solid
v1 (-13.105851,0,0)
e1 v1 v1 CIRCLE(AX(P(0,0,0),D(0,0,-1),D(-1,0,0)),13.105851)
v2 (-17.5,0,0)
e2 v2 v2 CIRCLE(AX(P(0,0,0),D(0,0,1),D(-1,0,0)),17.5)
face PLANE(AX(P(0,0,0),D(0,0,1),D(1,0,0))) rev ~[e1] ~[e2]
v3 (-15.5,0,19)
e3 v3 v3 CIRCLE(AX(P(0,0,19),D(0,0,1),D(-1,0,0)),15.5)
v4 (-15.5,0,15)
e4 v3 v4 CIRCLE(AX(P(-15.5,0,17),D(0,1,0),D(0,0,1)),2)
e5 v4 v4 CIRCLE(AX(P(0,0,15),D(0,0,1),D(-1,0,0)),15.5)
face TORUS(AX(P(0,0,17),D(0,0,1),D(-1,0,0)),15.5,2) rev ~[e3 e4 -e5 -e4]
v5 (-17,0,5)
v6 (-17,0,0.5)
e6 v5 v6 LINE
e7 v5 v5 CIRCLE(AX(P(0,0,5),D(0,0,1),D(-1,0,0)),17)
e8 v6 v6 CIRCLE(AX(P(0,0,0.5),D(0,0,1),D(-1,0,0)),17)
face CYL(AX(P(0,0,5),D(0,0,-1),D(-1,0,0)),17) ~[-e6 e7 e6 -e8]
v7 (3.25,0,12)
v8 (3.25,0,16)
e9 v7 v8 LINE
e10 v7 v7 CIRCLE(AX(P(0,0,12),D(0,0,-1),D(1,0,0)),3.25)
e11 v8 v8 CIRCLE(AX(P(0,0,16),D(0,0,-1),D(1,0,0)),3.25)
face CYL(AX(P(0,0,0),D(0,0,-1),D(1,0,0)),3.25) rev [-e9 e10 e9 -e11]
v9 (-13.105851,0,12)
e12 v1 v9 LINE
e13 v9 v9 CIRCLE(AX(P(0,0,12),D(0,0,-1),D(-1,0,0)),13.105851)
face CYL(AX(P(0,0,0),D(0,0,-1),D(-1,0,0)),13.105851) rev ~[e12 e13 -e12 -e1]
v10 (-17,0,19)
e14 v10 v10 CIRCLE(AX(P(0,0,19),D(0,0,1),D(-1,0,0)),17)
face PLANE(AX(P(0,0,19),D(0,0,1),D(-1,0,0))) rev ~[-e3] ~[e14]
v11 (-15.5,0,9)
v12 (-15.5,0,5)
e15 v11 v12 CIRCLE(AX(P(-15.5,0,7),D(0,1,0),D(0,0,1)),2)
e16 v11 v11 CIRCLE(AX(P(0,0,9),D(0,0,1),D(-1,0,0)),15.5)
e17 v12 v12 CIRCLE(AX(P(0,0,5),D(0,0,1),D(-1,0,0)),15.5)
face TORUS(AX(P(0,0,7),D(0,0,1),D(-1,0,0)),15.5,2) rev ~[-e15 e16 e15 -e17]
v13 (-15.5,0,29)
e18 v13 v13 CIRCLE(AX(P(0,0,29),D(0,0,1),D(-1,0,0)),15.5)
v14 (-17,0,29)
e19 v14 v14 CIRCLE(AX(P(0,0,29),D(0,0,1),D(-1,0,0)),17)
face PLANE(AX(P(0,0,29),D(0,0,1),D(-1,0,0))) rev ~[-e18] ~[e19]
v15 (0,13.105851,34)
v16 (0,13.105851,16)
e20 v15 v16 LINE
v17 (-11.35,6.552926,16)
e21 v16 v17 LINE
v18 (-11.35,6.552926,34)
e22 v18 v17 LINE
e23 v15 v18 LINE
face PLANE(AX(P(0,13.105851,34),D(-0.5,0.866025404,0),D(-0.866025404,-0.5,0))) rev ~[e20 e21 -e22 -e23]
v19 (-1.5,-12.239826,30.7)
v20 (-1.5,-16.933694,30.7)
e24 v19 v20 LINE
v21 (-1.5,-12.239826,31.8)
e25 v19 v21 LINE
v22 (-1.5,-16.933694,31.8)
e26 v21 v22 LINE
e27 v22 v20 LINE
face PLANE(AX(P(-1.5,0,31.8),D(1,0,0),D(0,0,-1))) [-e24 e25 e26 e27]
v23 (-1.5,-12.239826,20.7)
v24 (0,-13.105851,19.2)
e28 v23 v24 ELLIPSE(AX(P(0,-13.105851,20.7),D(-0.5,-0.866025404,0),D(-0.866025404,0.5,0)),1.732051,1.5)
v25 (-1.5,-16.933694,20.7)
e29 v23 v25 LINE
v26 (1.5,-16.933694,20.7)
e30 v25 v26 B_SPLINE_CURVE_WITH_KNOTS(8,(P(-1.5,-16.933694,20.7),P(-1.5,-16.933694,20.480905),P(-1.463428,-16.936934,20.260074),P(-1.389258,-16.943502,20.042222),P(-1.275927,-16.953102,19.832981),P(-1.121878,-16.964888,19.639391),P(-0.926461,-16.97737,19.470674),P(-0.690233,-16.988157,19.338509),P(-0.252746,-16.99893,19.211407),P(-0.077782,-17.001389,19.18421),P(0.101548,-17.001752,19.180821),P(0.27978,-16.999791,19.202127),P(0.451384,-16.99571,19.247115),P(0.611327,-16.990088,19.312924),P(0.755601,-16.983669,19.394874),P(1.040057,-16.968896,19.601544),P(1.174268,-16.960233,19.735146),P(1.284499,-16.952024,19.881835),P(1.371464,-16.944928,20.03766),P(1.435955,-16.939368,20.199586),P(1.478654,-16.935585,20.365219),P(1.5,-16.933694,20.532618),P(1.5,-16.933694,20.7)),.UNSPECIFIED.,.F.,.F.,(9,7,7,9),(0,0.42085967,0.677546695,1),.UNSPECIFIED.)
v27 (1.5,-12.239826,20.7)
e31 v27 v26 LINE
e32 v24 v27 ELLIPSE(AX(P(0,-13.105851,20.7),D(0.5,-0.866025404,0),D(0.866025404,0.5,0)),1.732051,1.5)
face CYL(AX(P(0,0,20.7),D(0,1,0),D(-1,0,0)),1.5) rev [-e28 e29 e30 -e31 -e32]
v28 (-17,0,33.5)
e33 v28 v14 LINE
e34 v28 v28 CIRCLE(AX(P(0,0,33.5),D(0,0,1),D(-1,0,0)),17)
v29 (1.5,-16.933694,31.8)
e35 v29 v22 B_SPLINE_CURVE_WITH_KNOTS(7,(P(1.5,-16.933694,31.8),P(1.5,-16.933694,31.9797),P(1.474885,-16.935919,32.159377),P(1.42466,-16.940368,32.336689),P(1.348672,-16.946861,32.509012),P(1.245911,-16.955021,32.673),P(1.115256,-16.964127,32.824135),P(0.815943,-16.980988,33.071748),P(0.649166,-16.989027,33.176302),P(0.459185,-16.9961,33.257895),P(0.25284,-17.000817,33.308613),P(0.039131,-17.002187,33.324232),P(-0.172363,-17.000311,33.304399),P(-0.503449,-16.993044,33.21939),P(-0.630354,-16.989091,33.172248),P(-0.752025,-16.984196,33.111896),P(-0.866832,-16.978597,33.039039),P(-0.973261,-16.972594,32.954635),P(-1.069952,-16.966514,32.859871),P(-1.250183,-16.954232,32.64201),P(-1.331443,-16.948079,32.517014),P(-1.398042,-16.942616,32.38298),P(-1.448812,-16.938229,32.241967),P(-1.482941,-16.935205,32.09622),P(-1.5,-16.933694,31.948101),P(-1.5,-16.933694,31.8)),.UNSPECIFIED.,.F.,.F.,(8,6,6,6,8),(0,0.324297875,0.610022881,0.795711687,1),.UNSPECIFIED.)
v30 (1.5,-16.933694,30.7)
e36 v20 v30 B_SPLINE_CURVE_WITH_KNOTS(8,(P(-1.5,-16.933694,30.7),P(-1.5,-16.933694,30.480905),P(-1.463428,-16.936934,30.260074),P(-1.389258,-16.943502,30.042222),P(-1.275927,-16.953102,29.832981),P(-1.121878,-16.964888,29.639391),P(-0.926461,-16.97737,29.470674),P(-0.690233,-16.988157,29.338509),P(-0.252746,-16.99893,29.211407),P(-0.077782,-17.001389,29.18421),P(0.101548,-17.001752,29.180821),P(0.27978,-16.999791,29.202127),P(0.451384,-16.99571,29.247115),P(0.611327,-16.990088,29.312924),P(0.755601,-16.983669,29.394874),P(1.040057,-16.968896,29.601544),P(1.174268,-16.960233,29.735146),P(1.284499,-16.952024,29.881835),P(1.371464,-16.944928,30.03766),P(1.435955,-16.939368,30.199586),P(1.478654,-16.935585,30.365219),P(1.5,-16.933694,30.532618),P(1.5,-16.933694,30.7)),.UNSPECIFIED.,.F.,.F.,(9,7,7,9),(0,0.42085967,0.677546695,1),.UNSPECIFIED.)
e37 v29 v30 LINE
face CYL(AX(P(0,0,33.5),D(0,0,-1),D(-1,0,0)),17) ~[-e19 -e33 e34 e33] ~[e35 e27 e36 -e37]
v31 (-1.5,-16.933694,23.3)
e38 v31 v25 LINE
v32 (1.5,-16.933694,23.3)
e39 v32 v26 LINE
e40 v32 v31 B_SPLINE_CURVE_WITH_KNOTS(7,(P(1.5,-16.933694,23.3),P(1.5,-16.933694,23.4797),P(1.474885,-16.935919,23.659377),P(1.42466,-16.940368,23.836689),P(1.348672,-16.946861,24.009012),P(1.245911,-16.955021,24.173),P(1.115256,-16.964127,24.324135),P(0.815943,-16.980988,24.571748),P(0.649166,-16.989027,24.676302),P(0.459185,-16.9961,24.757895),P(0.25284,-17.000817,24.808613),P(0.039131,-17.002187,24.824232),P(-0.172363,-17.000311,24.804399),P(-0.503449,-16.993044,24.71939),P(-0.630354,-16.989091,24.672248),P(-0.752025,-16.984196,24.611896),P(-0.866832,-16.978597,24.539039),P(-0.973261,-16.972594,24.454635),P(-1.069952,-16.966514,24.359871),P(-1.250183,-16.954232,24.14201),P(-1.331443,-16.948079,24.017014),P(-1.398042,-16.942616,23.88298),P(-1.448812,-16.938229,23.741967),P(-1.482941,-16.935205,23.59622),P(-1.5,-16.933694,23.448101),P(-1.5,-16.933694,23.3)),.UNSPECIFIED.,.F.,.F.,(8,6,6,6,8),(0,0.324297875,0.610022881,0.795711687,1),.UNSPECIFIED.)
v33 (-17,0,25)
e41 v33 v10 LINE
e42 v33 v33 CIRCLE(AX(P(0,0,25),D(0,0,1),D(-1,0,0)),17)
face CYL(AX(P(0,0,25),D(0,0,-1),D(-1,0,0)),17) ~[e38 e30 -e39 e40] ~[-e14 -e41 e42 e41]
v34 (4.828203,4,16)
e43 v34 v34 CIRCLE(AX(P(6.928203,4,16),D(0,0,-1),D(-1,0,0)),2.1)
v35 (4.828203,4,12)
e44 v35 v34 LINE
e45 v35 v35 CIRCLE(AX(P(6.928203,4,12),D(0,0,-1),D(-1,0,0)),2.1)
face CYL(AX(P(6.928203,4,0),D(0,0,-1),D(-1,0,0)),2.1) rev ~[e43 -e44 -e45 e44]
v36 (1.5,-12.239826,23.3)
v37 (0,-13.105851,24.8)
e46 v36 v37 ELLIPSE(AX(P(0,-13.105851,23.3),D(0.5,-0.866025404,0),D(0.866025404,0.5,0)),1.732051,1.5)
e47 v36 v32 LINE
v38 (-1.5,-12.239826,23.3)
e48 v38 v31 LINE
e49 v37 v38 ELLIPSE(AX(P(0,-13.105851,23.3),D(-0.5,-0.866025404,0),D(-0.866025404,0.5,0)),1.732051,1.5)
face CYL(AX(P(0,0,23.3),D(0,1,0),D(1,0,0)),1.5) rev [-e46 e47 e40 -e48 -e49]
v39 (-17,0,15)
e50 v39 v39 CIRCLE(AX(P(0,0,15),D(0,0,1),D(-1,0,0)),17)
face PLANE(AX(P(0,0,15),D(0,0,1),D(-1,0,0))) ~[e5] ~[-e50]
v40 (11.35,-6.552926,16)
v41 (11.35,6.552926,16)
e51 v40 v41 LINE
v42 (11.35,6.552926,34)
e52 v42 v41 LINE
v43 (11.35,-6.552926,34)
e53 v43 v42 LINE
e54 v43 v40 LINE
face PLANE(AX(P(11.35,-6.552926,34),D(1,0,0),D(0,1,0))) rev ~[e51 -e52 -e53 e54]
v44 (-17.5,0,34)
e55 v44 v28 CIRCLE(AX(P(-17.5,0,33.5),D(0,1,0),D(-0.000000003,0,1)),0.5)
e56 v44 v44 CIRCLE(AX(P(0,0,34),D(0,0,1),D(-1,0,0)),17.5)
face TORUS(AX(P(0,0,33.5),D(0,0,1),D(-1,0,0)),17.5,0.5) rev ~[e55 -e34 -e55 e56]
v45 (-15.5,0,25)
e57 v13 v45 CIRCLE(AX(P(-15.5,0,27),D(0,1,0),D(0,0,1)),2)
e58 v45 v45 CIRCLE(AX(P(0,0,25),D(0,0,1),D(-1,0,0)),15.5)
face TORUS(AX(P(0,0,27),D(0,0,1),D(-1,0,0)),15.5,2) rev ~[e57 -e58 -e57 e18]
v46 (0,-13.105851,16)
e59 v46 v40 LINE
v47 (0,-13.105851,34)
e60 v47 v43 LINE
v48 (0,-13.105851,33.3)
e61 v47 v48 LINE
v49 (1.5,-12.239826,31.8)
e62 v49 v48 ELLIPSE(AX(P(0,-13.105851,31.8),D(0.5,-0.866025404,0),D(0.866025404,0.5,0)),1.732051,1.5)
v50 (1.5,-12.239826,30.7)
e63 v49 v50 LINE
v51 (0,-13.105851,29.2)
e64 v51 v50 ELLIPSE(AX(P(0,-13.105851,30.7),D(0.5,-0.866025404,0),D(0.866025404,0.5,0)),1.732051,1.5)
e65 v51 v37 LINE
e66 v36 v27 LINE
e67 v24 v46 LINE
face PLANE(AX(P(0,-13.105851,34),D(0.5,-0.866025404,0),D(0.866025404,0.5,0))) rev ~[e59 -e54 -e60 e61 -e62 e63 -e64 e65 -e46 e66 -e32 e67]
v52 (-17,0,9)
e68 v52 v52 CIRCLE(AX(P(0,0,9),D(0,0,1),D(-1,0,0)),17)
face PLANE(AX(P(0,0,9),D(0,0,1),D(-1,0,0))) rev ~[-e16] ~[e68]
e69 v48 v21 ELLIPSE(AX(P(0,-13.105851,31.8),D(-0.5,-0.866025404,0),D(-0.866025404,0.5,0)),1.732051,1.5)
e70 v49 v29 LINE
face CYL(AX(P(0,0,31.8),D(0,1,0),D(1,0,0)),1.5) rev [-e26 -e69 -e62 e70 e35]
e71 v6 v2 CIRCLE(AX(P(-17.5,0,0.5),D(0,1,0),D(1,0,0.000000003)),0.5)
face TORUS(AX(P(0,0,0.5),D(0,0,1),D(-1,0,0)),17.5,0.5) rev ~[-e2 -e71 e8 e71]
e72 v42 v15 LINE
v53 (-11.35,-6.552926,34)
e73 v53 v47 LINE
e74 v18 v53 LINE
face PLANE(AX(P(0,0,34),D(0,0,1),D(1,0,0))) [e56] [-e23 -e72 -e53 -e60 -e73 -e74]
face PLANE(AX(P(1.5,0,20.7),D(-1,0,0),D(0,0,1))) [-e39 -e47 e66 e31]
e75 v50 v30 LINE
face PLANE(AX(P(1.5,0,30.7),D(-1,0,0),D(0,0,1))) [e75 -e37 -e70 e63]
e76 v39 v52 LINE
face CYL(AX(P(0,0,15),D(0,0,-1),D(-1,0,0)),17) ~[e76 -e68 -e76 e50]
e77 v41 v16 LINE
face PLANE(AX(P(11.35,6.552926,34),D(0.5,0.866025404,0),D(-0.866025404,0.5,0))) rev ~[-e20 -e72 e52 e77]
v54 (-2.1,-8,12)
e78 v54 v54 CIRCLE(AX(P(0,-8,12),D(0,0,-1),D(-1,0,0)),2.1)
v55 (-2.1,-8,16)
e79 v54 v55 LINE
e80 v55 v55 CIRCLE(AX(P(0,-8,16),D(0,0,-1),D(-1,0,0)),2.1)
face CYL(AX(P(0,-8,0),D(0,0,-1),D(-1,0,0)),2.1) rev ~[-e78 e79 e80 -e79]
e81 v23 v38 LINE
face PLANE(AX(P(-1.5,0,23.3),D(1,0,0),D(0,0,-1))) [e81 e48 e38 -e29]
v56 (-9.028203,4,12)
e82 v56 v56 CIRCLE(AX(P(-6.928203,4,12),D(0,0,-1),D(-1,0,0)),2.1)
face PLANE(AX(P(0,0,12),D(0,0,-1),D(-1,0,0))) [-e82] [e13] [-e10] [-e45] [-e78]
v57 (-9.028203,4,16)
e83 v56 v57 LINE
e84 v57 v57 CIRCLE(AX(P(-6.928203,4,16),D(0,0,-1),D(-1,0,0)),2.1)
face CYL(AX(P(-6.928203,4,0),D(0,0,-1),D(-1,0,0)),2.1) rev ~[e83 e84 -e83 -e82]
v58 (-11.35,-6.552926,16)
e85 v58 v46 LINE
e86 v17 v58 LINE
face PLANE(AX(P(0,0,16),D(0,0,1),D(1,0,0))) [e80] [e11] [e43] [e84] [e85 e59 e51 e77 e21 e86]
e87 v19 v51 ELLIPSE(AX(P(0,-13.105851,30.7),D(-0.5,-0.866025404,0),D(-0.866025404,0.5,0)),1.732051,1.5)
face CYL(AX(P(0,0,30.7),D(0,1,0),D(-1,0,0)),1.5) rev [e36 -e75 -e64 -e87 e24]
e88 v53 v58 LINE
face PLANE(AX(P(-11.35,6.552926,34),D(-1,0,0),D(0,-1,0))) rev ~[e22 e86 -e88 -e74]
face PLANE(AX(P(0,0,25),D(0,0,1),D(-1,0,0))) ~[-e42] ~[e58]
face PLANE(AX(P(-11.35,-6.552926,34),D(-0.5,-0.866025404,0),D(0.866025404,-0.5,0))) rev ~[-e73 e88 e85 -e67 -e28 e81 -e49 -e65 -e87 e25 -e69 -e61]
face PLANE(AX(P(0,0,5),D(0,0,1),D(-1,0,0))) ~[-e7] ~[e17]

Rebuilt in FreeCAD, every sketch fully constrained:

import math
import FreeCAD as App
import Part
import Sketcher

V = App.Vector
Q = App.Units.Quantity


def add_polygon(sketch, points):
    """Adds a closed chain of lines whose ends are joined by coincident constraints."""
    first, n = sketch.GeometryCount, len(points)
    for a, b in zip(points, points[1:] + points[:1]):
        sketch.addGeometry(Part.LineSegment(App.Vector(*a, 0), App.Vector(*b, 0)), False)
    for i in range(n):
        sketch.addConstraint(Sketcher.Constraint("Coincident", first + i, 2, first + (i + 1) % n, 1))

doc = App.newDocument("Part")
body = doc.addObject("PartDesign::Body", "Body")

# Sketch on XY plane
sketch1 = body.newObject("Sketcher::SketchObject", "Sketch")
sketch1.AttachmentSupport = (doc.getObject("XY_Plane"), [""])
sketch1.MapMode = "FlatFace"
sketch1.addGeometry([
    Part.Circle(V(0, 0, 0), V(0, 0, 1), 18),
    Part.Circle(V(0, 0, 0), V(0, 0, 1), 3.2),
], False)
sketch1.addConstraint([
    Sketcher.Constraint("Coincident", 0, 3, -1, 1),
    Sketcher.Constraint("Coincident", 1, 3, -1, 1),
    Sketcher.Constraint("Diameter", 0, Q("36 mm")),
    Sketcher.Constraint("Diameter", 1, Q("6.5 mm")),
])
pad1 = body.newObject("PartDesign::Pad", "Pad")
pad1.Profile = sketch1
pad1.Length = 34

# Sketch on XY plane
sketch2 = body.newObject("Sketcher::SketchObject", "Sketch001")
sketch2.AttachmentSupport = (doc.getObject("XY_Plane"), [""])
sketch2.MapMode = "FlatFace"
sketch2.AttachmentOffset = App.Placement(V(0, 0, 34), App.Rotation())
add_polygon(sketch2, [(11, -7), (11, 7), (0, 13), (-11, 7), (-11, -7), (0, -13)])  # lines 0-5
sketch2.addConstraint([
    Sketcher.Constraint("Vertical", 0),
    Sketcher.Constraint("Vertical", 3),
    Sketcher.Constraint("Symmetric", 0, 2, 3, 2, -1, 1),
    Sketcher.Constraint("Symmetric", 1, 2, 4, 2, -1, 1),
    Sketcher.Constraint("PointOnObject", 1, 2, -2),
    Sketcher.Constraint("Parallel", 2, 5),
    Sketcher.Constraint("Horizontal", 0, 2, 2, 2),
    Sketcher.Constraint("Angle", 1, Q("150 deg")),
    Sketcher.Constraint("DistanceX", 2, 2, 0, 2, Q("22.7 mm")),
    Sketcher.Constraint("DistanceY", 0, 1, 0, 2, Q("13.105851 mm")),
])
pocket1 = body.newObject("PartDesign::Pocket", "Pocket")
pocket1.Profile = sketch2
pocket1.Length = 18

# Sketch on XY plane
sketch3 = body.newObject("Sketcher::SketchObject", "Sketch002")
sketch3.AttachmentSupport = (doc.getObject("XY_Plane"), [""])
sketch3.MapMode = "FlatFace"
sketch3.addGeometry([
    Part.Circle(V(6.9, 4, 0), V(0, 0, 1), 2.1),
    Part.Circle(V(-6.9, 4, 0), V(0, 0, 1), 2.1),
    Part.Circle(V(0, -8, 0), V(0, 0, 1), 2.1),
], False)
sketch3.addConstraint([
    Sketcher.Constraint("Equal", 0, 1),
    Sketcher.Constraint("Equal", 1, 2),
    Sketcher.Constraint("Symmetric", 0, 3, 1, 3, -2),
    Sketcher.Constraint("PointOnObject", 2, 3, -2),
    Sketcher.Constraint("Diameter", 0, Q("4.2 mm")),
    Sketcher.Constraint("DistanceY", -1, 1, 0, 3, Q("4 mm")),
    Sketcher.Constraint("DistanceY", 2, 3, -1, 1, Q("8 mm")),
    Sketcher.Constraint("DistanceX", -1, 1, 0, 3, Q("6.928203 mm")),
])
pocket2 = body.newObject("PartDesign::Pocket", "Pocket001")
pocket2.Profile = sketch3
pocket2.Type = "ThroughAll"
pocket2.Reversed = True

# Sketch on XY plane
sketch4 = body.newObject("Sketcher::SketchObject", "Sketch003")
sketch4.AttachmentSupport = (doc.getObject("XY_Plane"), [""])
sketch4.MapMode = "FlatFace"
sketch4.addGeometry([
    Part.Circle(V(6.9, 4, 0), V(0, 0, 1), 4.2),
    Part.Circle(V(-6.9, 4, 0), V(0, 0, 1), 4.2),
    Part.Circle(V(0, -8, 0), V(0, 0, 1), 4.2),
], False)
sketch4.addConstraint([
    Sketcher.Constraint("Equal", 0, 1),
    Sketcher.Constraint("Equal", 1, 2),
    Sketcher.Constraint("Symmetric", 0, 3, 1, 3, -2),
    Sketcher.Constraint("PointOnObject", 2, 3, -2),
    Sketcher.Constraint("Diameter", 0, Q("8.5 mm")),
    Sketcher.Constraint("DistanceY", -1, 1, 0, 3, Q("4 mm")),
    Sketcher.Constraint("DistanceY", 2, 3, -1, 1, Q("8 mm")),
    Sketcher.Constraint("DistanceX", -1, 1, 0, 3, Q("6.928203 mm")),
])
pocket3 = body.newObject("PartDesign::Pocket", "Pocket002")
pocket3.Profile = sketch4
pocket3.Length = 4
pocket3.Reversed = True

# Sketch on XZ plane
sketch5 = body.newObject("Sketcher::SketchObject", "Sketch004")
sketch5.AttachmentSupport = (doc.getObject("XZ_Plane"), [""])
sketch5.MapMode = "FlatFace"
sketch5.addGeometry([
    Part.LineSegment(V(-18, 34, 0), V(-17.5, 34, 0)),  # 0
    Part.ArcOfCircle(Part.Circle(V(-17.5, 33.5, 0), V(0, 0, 1), 0.5), math.radians(0), math.radians(90)),  # 1
    Part.LineSegment(V(-17, 33.5, 0), V(-17, 29, 0)),  # 2
    Part.LineSegment(V(-17, 29, 0), V(-15.5, 29, 0)),  # 3
    Part.ArcOfCircle(Part.Circle(V(-15.5, 27, 0), V(0, 0, 1), 2), math.radians(-90), math.radians(90)),  # 4
    Part.LineSegment(V(-15.5, 25, 0), V(-17, 25, 0)),  # 5
    Part.LineSegment(V(-17, 25, 0), V(-17, 19, 0)),  # 6
    Part.LineSegment(V(-17, 19, 0), V(-15.5, 19, 0)),  # 7
    Part.ArcOfCircle(Part.Circle(V(-15.5, 17, 0), V(0, 0, 1), 2), math.radians(-90), math.radians(90)),  # 8
    Part.LineSegment(V(-15.5, 15, 0), V(-17, 15, 0)),  # 9
    Part.LineSegment(V(-17, 15, 0), V(-17, 9, 0)),  # 10
    Part.LineSegment(V(-17, 9, 0), V(-15.5, 9, 0)),  # 11
    Part.ArcOfCircle(Part.Circle(V(-15.5, 7, 0), V(0, 0, 1), 2), math.radians(-90), math.radians(90)),  # 12
    Part.LineSegment(V(-15.5, 5, 0), V(-17, 5, 0)),  # 13
    Part.LineSegment(V(-17, 5, 0), V(-17, 0.5, 0)),  # 14
    Part.ArcOfCircle(Part.Circle(V(-17.5, 0.5, 0), V(0, 0, 1), 0.5), math.radians(-90), math.radians(0)),  # 15
    Part.LineSegment(V(-17.5, 0, 0), V(-18, 0, 0)),  # 16
    Part.LineSegment(V(-18, 0, 0), V(-18, 34, 0)),  # 17
], False)
sketch5.addConstraint([
    Sketcher.Constraint("Tangent", 0, 2, 1, 2),
    Sketcher.Constraint("Tangent", 1, 1, 2, 1),
    Sketcher.Constraint("Coincident", 2, 2, 3, 1),
    Sketcher.Constraint("Tangent", 3, 2, 4, 2),
    Sketcher.Constraint("Tangent", 4, 1, 5, 1),
    Sketcher.Constraint("Coincident", 5, 2, 6, 1),
    Sketcher.Constraint("Coincident", 6, 2, 7, 1),
    Sketcher.Constraint("Tangent", 7, 2, 8, 2),
    Sketcher.Constraint("Tangent", 8, 1, 9, 1),
    Sketcher.Constraint("Coincident", 9, 2, 10, 1),
    Sketcher.Constraint("Coincident", 10, 2, 11, 1),
    Sketcher.Constraint("Tangent", 11, 2, 12, 2),
    Sketcher.Constraint("Tangent", 12, 1, 13, 1),
    Sketcher.Constraint("Coincident", 13, 2, 14, 1),
    Sketcher.Constraint("Tangent", 14, 2, 15, 2),
    Sketcher.Constraint("Tangent", 15, 1, 16, 1),
    Sketcher.Constraint("Coincident", 16, 2, 17, 1),
    Sketcher.Constraint("Coincident", 17, 2, 0, 1),
    Sketcher.Constraint("Horizontal", 0),
    Sketcher.Constraint("Vertical", 2),
    Sketcher.Constraint("Horizontal", 3),
    Sketcher.Constraint("Horizontal", 5),
    Sketcher.Constraint("Vertical", 6),
    Sketcher.Constraint("Horizontal", 7),
    Sketcher.Constraint("Horizontal", 9),
    Sketcher.Constraint("Vertical", 10),
    Sketcher.Constraint("Horizontal", 11),
    Sketcher.Constraint("Horizontal", 13),
    Sketcher.Constraint("Vertical", 14),
    Sketcher.Constraint("Horizontal", 16),
    Sketcher.Constraint("Vertical", 17),
    Sketcher.Constraint("Equal", 4, 8),
    Sketcher.Constraint("Equal", 8, 12),
    Sketcher.Constraint("Equal", 1, 15),
    Sketcher.Constraint("PointOnObject", 15, 1, -1),
    Sketcher.Constraint("Vertical", 4, 3, 8, 3),
    Sketcher.Constraint("Vertical", 8, 3, 12, 3),
    Sketcher.Constraint("Vertical", 1, 3, 15, 3),
    Sketcher.Constraint("Vertical", 2, 2, 5, 2),
    Sketcher.Constraint("Vertical", 6, 2, 9, 2),
    Sketcher.Constraint("Equal", 6, 10),
    Sketcher.Constraint("Equal", 2, 14),
    Sketcher.Constraint("Radius", 4, Q("2 mm")),
    Sketcher.Constraint("Radius", 1, Q("0.5 mm")),
    Sketcher.Constraint("DistanceY", 6, 2, 6, 1, Q("6 mm")),
    Sketcher.Constraint("DistanceY", 17, 1, 17, 2, Q("34 mm")),
    Sketcher.Constraint("DistanceX", 0, 1, 0, 2, Q("0.5 mm")),
    Sketcher.Constraint("DistanceX", 3, 1, 3, 2, Q("1.5 mm")),
    Sketcher.Constraint("DistanceX", 1, 1, -1, 1, Q("17 mm")),
])
groove = body.newObject("PartDesign::Groove", "Groove")
groove.Profile = sketch5
groove.ReferenceAxis = (sketch5, ["V_Axis"])
groove.Angle = 360

# Sketch on XY plane
sketch6 = body.newObject("Sketcher::SketchObject", "Sketch005")
sketch6.AttachmentSupport = (doc.getObject("XY_Plane"), [""])
sketch6.MapMode = "FlatFace"
sketch6.addGeometry(Part.Circle(V(0, 0, 0), V(0, 0, 1), 13), False)
sketch6.addConstraint([
    Sketcher.Constraint("Coincident", 0, 3, -1, 1),
    Sketcher.Constraint("Diameter", 0, Q("26.211702 mm")),
])
pocket4 = body.newObject("PartDesign::Pocket", "Pocket003")
pocket4.Profile = sketch6
pocket4.Length = 12
pocket4.Reversed = True

# Sketch on XZ plane
sketch7 = body.newObject("Sketcher::SketchObject", "Sketch006")
sketch7.AttachmentSupport = (doc.getObject("XZ_Plane"), [""])
sketch7.MapMode = "FlatFace"
sketch7.addGeometry([
    Part.LineSegment(V(1.5, 23.3, 0), V(1.5, 20.7, 0)),  # 0
    Part.ArcOfCircle(Part.Circle(V(0, 20.7, 0), V(0, 0, 1), 1.5), math.radians(180), math.radians(360)),  # 1
    Part.LineSegment(V(-1.5, 20.7, 0), V(-1.5, 23.3, 0)),  # 2
    Part.ArcOfCircle(Part.Circle(V(0, 23.3, 0), V(0, 0, 1), 1.5), math.radians(0), math.radians(180)),  # 3
    Part.LineSegment(V(1.5, 31.8, 0), V(1.5, 30.7, 0)),  # 4
    Part.ArcOfCircle(Part.Circle(V(0, 30.7, 0), V(0, 0, 1), 1.5), math.radians(180), math.radians(360)),  # 5
    Part.LineSegment(V(-1.5, 30.7, 0), V(-1.5, 31.8, 0)),  # 6
    Part.ArcOfCircle(Part.Circle(V(0, 31.8, 0), V(0, 0, 1), 1.5), math.radians(0), math.radians(180)),  # 7
], False)
sketch7.addConstraint([
    Sketcher.Constraint("Tangent", 0, 2, 1, 2),
    Sketcher.Constraint("Tangent", 1, 1, 2, 1),
    Sketcher.Constraint("Tangent", 2, 2, 3, 2),
    Sketcher.Constraint("Tangent", 3, 1, 0, 1),
    Sketcher.Constraint("Tangent", 4, 2, 5, 2),
    Sketcher.Constraint("Tangent", 5, 1, 6, 1),
    Sketcher.Constraint("Tangent", 6, 2, 7, 2),
    Sketcher.Constraint("Tangent", 7, 1, 4, 1),
    Sketcher.Constraint("Vertical", 0),
    Sketcher.Constraint("Vertical", 2),
    Sketcher.Constraint("Vertical", 4),
    Sketcher.Constraint("Vertical", 6),
    Sketcher.Constraint("Equal", 3, 5),
    Sketcher.Constraint("PointOnObject", 1, 3, -2),
    Sketcher.Constraint("PointOnObject", 5, 3, -2),
    Sketcher.Constraint("Radius", 1, Q("1.5 mm")),
    Sketcher.Constraint("DistanceY", 0, 2, 0, 1, Q("2.6 mm")),
    Sketcher.Constraint("DistanceY", 4, 2, 4, 1, Q("1.1 mm")),
    Sketcher.Constraint("DistanceY", 1, 3, 5, 3, Q("10 mm")),
    Sketcher.Constraint("DistanceY", -1, 1, 1, 3, Q("20.7 mm")),
])
pocket5 = body.newObject("PartDesign::Pocket", "Pocket004")
pocket5.Profile = sketch7
pocket5.Type = "ThroughAll"
pocket5.Reversed = True

doc.recompute()
